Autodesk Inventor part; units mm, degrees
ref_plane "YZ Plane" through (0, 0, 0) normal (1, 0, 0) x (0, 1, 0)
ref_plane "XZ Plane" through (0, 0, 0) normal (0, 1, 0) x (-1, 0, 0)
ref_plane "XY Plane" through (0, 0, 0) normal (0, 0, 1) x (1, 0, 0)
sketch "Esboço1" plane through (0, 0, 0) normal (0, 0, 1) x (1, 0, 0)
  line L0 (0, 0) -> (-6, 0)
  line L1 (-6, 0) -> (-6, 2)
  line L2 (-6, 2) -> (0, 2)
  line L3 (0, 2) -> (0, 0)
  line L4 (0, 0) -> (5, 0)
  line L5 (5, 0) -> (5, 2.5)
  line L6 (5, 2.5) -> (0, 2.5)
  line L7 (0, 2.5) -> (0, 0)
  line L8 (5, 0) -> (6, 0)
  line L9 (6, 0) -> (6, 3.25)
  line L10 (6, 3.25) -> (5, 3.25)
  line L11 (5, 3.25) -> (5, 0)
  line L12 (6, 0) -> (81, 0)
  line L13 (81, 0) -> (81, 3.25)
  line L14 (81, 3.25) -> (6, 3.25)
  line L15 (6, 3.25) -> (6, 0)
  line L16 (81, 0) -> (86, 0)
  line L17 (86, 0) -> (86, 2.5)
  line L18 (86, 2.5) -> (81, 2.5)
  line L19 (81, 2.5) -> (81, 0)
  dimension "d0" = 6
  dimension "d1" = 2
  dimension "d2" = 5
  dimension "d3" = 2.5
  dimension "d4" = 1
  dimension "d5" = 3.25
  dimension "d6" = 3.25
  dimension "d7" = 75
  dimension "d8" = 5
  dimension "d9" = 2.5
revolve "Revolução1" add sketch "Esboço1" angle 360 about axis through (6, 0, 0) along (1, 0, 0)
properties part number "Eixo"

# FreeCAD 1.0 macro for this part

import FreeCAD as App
import Part
import Sketcher
from FreeCAD import Vector


def add_polygon(sketch, points):
    """Adds a closed chain of lines whose ends are joined by coincident constraints."""
    first, n = sketch.GeometryCount, len(points)
    for a, b in zip(points, points[1:] + points[:1]):
        sketch.addGeometry(Part.LineSegment(App.Vector(*a, 0), App.Vector(*b, 0)), False)
    for i in range(n):
        sketch.addConstraint(Sketcher.Constraint("Coincident", first + i, 2, first + (i + 1) % n, 1))

doc = App.newDocument("Part")
body = doc.addObject("PartDesign::Body", "Body")

sketch1 = doc.addObject("Sketcher::SketchObject", "Sketch")
body.addObject(sketch1)
sketch1.AttachmentSupport = (doc.XY_Plane, [""])
sketch1.MapMode = "FlatFace"
add_polygon(sketch1, [(-6, 0), (86, 0), (86, 2.5), (81, 2.5), (81, 3.2), (5, 3.2), (5, 2.5), (0, 2.5), (0, 2), (-6, 2)])
sketch1.addConstraint(Sketcher.Constraint("Horizontal", 0))
sketch1.addConstraint(Sketcher.Constraint("Vertical", 1))
sketch1.addConstraint(Sketcher.Constraint("Horizontal", 2))
sketch1.addConstraint(Sketcher.Constraint("Vertical", 3))
sketch1.addConstraint(Sketcher.Constraint("Horizontal", 4))
sketch1.addConstraint(Sketcher.Constraint("Vertical", 5))
sketch1.addConstraint(Sketcher.Constraint("Horizontal", 6))
sketch1.addConstraint(Sketcher.Constraint("Vertical", 7))
sketch1.addConstraint(Sketcher.Constraint("Horizontal", 8))
sketch1.addConstraint(Sketcher.Constraint("Vertical", 9))
sketch1.addConstraint(Sketcher.Constraint("PointOnObject", 0, 2, -1))
sketch1.addConstraint(Sketcher.Constraint("PointOnObject", 6, 2, -2))
sketch1.addConstraint(Sketcher.Constraint("Horizontal", 2, 2, 5, 2))
sketch1.addConstraint(Sketcher.Constraint("Equal", 2, 6))
sketch1.addConstraint(Sketcher.Constraint("DistanceX", 2, 2, 2, 1, 5.0))
sketch1.addConstraint(Sketcher.Constraint("DistanceX", 8, 2, 8, 1, 6.0))
sketch1.addConstraint(Sketcher.Constraint("DistanceY", 9, 2, 9, 1, 2.0))
sketch1.addConstraint(Sketcher.Constraint("DistanceY", 1, 1, 1, 2, 2.5))
sketch1.addConstraint(Sketcher.Constraint("DistanceX", 0, 1, 0, 2, 92.0))
sketch1.addConstraint(Sketcher.Constraint("DistanceY", -1, 1, 3, 2, 3.25))
revolution = doc.addObject("PartDesign::Revolution", "Revolution")
body.addObject(revolution)
revolution.Profile = sketch1
revolution.ReferenceAxis = (sketch1, ["H_Axis"])
revolution.Angle = 360

doc.recompute()
